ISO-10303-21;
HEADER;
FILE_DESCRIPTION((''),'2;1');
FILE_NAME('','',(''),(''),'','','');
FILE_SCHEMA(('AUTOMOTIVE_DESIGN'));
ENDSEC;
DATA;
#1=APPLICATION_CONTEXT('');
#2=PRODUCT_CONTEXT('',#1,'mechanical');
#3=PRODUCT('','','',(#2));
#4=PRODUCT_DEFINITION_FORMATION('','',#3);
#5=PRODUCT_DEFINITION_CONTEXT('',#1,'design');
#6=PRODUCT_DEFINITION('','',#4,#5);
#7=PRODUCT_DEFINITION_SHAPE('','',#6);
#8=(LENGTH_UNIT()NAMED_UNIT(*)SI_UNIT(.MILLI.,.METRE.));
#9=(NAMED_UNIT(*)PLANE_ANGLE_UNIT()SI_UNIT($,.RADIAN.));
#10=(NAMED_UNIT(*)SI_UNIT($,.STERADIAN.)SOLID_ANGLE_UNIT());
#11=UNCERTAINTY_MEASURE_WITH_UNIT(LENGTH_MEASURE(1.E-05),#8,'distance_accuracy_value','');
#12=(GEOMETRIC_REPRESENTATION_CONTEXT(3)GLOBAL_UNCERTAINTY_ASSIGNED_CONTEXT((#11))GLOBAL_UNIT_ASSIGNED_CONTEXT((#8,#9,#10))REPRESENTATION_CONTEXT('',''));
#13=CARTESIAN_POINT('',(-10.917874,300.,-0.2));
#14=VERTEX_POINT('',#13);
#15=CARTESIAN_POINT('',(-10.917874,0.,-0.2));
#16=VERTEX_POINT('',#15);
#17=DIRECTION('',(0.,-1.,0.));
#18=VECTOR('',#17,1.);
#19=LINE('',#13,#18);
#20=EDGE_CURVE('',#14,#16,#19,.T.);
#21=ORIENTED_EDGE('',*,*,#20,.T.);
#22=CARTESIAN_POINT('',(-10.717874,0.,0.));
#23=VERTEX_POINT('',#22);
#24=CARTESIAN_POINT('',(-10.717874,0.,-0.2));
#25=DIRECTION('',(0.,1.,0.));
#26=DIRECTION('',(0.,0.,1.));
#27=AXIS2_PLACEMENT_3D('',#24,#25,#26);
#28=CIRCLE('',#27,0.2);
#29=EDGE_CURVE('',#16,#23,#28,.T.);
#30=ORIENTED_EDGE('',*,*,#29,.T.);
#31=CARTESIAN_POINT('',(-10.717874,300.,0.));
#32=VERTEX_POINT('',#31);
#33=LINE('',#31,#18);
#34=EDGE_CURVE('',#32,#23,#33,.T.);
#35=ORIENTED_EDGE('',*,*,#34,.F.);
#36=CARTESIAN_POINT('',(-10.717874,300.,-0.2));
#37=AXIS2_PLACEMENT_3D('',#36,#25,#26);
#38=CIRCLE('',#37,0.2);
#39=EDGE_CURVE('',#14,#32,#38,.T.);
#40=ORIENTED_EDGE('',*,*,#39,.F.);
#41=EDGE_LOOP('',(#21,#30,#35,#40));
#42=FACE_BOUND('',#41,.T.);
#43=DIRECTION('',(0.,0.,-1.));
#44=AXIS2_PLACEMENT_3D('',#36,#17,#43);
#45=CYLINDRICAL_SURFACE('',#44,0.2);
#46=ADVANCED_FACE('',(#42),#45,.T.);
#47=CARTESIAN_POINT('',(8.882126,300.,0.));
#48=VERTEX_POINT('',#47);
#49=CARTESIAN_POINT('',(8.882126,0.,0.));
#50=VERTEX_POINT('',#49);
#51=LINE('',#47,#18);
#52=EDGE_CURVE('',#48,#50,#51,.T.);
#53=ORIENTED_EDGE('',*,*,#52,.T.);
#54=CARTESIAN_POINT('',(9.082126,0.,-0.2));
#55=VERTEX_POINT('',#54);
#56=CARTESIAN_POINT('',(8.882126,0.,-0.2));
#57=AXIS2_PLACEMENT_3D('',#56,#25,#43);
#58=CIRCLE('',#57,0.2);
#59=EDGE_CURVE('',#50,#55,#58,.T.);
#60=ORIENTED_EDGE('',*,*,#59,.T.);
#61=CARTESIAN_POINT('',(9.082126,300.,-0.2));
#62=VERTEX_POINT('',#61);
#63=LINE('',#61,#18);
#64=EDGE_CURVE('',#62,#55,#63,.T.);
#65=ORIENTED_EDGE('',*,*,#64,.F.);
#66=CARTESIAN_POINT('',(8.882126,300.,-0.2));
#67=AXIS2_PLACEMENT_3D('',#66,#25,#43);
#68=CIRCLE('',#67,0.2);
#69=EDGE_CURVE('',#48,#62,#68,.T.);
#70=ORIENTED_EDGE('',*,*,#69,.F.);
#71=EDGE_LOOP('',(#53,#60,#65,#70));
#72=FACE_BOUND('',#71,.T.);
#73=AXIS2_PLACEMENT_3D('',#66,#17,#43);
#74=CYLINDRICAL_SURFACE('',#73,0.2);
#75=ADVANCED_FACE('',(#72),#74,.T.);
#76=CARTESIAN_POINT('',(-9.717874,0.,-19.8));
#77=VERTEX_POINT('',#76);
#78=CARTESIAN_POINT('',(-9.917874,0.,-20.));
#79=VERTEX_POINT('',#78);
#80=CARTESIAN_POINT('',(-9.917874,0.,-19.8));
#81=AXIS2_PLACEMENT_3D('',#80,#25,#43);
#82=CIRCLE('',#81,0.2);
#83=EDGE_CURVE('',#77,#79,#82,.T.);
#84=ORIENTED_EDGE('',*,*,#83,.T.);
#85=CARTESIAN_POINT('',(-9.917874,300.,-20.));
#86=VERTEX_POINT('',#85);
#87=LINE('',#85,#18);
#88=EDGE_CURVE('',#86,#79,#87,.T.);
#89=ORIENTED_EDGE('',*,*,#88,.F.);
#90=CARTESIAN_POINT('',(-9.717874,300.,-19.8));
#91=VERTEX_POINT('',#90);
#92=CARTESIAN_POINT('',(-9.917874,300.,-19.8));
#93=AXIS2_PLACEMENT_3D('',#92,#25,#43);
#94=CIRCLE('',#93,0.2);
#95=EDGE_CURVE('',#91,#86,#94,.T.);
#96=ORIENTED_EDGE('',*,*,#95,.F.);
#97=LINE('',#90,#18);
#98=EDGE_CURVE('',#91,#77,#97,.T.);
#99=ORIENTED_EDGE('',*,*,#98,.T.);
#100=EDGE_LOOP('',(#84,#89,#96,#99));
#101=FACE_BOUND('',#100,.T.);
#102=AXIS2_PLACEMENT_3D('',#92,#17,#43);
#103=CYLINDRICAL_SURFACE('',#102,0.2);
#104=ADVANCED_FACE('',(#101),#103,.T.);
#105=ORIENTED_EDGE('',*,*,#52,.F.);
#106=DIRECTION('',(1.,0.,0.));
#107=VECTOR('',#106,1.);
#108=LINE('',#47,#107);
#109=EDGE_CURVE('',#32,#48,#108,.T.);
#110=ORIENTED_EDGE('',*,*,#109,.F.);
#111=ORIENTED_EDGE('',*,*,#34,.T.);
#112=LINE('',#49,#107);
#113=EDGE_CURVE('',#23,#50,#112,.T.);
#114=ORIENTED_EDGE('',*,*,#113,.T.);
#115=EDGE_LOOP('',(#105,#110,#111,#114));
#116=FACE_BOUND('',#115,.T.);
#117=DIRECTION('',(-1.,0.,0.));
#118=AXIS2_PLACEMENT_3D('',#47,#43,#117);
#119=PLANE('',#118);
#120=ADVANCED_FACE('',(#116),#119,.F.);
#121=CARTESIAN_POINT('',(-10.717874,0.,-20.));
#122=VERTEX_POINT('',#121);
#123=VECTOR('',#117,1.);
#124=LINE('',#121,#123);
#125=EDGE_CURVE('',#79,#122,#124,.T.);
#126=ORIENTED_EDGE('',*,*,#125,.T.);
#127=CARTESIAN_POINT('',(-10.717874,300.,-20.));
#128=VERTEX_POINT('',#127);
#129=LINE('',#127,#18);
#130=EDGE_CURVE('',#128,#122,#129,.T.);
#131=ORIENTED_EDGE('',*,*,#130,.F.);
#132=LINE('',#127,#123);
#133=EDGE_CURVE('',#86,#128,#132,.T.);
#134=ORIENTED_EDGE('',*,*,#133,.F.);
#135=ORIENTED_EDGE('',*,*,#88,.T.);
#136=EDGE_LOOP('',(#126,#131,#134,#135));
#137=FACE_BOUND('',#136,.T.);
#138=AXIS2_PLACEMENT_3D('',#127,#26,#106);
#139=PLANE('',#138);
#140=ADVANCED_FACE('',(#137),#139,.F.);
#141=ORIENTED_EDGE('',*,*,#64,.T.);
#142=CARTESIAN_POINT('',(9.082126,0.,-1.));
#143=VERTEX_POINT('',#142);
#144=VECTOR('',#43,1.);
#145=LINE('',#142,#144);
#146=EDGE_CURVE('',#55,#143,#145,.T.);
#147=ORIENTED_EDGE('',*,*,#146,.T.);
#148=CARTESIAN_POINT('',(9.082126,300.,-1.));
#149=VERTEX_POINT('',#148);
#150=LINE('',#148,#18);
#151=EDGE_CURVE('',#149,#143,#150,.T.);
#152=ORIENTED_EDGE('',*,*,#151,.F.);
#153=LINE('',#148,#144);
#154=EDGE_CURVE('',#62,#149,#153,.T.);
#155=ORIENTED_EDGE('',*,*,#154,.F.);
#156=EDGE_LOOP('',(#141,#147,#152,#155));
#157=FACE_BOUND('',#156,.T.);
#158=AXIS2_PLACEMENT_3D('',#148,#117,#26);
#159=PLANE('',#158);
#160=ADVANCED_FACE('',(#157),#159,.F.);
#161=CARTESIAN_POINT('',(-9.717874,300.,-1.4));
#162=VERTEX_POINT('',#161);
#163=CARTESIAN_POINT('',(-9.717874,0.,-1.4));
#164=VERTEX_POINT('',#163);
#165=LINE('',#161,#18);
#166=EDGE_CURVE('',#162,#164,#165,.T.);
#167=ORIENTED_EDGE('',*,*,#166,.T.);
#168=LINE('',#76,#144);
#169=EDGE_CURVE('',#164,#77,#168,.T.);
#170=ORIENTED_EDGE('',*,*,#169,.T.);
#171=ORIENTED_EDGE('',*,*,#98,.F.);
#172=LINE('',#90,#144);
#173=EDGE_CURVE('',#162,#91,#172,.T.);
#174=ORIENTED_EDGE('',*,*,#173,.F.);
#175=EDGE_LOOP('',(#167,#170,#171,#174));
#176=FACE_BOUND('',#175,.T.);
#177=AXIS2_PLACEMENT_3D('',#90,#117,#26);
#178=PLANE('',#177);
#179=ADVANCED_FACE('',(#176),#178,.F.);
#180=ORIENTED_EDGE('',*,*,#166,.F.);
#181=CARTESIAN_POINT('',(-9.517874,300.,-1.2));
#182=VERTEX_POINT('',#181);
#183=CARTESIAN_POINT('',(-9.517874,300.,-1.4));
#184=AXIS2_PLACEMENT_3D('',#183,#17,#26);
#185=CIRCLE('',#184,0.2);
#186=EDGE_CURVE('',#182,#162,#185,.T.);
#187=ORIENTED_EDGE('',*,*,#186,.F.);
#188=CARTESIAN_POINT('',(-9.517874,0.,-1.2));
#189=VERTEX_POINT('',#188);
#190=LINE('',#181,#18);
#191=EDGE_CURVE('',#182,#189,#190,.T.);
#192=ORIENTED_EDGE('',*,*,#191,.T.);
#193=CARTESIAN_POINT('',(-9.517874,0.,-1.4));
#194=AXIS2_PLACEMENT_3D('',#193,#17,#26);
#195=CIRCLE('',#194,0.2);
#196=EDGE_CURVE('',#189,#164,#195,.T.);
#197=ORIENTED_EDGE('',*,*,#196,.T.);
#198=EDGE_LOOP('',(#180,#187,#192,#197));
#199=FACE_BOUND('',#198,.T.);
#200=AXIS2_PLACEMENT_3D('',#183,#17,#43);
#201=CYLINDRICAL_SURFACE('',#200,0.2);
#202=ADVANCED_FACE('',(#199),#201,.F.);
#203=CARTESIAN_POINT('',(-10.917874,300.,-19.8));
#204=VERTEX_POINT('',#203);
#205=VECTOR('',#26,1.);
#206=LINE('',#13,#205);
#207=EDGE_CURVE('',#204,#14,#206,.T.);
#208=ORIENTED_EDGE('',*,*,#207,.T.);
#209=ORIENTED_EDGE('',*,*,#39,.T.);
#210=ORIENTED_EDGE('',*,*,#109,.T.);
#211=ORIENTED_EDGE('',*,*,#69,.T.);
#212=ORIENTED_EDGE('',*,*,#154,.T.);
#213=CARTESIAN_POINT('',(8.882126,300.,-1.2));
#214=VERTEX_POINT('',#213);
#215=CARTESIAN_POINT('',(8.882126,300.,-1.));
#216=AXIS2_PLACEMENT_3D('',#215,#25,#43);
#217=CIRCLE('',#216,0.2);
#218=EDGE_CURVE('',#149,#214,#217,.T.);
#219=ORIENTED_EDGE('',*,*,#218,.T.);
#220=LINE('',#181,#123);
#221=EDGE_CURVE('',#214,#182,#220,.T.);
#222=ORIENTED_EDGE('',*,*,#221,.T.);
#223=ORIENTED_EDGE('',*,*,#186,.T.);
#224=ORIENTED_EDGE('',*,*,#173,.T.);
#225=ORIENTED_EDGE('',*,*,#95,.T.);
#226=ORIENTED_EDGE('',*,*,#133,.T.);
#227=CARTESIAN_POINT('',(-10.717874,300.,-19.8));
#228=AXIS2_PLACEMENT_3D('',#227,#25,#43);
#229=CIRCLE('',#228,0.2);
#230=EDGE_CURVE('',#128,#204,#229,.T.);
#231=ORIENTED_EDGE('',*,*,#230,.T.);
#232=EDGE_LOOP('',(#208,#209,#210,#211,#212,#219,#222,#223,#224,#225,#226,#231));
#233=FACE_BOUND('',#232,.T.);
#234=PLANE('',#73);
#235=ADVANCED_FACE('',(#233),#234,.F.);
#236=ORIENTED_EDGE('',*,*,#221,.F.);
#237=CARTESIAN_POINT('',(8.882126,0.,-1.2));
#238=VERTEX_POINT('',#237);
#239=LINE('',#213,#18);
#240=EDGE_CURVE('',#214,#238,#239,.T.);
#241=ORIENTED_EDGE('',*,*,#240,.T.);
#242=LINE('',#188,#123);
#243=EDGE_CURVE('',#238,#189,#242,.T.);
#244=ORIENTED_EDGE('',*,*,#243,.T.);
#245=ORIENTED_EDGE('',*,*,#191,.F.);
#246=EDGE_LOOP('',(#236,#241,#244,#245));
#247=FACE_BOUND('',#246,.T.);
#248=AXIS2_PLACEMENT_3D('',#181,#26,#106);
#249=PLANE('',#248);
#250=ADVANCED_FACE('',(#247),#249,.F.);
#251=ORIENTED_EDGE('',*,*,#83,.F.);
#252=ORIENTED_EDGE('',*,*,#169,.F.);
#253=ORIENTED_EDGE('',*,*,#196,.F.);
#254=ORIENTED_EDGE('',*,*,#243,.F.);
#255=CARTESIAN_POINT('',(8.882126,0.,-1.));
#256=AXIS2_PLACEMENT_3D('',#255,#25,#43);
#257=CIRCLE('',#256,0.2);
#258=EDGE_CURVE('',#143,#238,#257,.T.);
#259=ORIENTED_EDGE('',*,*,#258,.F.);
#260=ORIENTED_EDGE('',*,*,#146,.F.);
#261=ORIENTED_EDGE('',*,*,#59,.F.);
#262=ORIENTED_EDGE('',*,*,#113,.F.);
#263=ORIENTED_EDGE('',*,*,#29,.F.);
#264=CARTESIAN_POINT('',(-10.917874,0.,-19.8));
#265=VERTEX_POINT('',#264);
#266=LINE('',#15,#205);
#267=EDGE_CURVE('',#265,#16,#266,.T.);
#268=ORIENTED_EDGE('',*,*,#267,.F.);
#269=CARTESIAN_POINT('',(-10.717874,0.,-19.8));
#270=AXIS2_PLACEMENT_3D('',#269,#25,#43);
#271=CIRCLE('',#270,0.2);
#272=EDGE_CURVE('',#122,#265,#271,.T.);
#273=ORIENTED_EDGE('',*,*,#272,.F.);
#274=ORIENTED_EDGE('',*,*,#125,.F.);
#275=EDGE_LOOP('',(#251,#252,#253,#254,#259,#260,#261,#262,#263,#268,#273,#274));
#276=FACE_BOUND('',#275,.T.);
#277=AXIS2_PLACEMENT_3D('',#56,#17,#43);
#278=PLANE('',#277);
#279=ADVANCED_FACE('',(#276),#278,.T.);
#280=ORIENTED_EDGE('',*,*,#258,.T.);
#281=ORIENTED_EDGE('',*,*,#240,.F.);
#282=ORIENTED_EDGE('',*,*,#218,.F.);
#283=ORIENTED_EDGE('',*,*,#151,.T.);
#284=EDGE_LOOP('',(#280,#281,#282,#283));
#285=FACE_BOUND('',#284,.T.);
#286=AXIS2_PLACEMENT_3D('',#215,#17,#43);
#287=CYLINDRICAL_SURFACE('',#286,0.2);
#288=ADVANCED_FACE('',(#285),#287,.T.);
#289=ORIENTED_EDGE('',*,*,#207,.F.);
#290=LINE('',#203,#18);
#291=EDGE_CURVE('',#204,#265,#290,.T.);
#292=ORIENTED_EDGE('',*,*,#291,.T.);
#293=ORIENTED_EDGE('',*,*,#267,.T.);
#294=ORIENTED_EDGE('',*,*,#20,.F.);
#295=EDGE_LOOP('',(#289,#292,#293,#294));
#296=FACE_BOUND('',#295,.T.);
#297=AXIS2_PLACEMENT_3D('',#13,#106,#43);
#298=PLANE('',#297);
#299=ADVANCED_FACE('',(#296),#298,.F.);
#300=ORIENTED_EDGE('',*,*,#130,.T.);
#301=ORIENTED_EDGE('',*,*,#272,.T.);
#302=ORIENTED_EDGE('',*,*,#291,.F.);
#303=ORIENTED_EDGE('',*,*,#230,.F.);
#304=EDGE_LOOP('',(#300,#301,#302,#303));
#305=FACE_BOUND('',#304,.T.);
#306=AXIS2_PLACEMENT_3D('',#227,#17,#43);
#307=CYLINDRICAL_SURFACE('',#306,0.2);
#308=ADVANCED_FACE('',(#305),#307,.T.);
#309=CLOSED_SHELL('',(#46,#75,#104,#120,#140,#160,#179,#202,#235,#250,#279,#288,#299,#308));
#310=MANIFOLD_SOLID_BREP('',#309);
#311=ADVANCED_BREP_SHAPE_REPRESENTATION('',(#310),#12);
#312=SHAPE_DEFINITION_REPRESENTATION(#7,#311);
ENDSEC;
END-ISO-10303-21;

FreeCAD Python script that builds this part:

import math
import FreeCAD as App
import Part
import Sketcher

V = App.Vector
Q = App.Units.Quantity

doc = App.newDocument("Part")
body = doc.addObject("PartDesign::Body", "Body")

# Sketch on XZ plane
sketch1 = body.newObject("Sketcher::SketchObject", "Sketch")
sketch1.AttachmentSupport = (doc.getObject("XZ_Plane"), [""])
sketch1.MapMode = "FlatFace"
sketch1.addGeometry([
    Part.LineSegment(V(-10.92, -19.8, 0), V(-10.92, -0.2, 0)),  # 0
    Part.ArcOfCircle(Part.Circle(V(-10.72, -0.2, 0), V(0, 0, 1), 0.2), math.radians(90), math.radians(180)),  # 1
    Part.LineSegment(V(-10.72, 0, 0), V(8.88, 0, 0)),  # 2
    Part.ArcOfCircle(Part.Circle(V(8.88, -0.2, 0), V(0, 0, 1), 0.2), math.radians(0), math.radians(90)),  # 3
    Part.LineSegment(V(9.08, -0.2, 0), V(9.08, -1, 0)),  # 4
    Part.ArcOfCircle(Part.Circle(V(8.88, -1, 0), V(0, 0, 1), 0.2), math.radians(-90), math.radians(0)),  # 5
    Part.LineSegment(V(8.88, -1.2, 0), V(-9.52, -1.2, 0)),  # 6
    Part.ArcOfCircle(Part.Circle(V(-9.52, -1.4, 0), V(0, 0, 1), 0.2), math.radians(90), math.radians(180)),  # 7
    Part.LineSegment(V(-9.72, -1.4, 0), V(-9.72, -19.8, 0)),  # 8
    Part.ArcOfCircle(Part.Circle(V(-9.92, -19.8, 0), V(0, 0, 1), 0.2), math.radians(-90), math.radians(0)),  # 9
    Part.LineSegment(V(-9.92, -20, 0), V(-10.72, -20, 0)),  # 10
    Part.ArcOfCircle(Part.Circle(V(-10.72, -19.8, 0), V(0, 0, 1), 0.2), math.radians(-180), math.radians(-90)),  # 11
], False)
sketch1.addConstraint([
    Sketcher.Constraint("Tangent", 0, 2, 1, 2),
    Sketcher.Constraint("Tangent", 1, 1, 2, 1),
    Sketcher.Constraint("Tangent", 2, 2, 3, 2),
    Sketcher.Constraint("Tangent", 3, 1, 4, 1),
    Sketcher.Constraint("Tangent", 4, 2, 5, 2),
    Sketcher.Constraint("Tangent", 5, 1, 6, 1),
    Sketcher.Constraint("Tangent", 6, 2, 7, 1),
    Sketcher.Constraint("Tangent", 7, 2, 8, 1),
    Sketcher.Constraint("Tangent", 8, 2, 9, 2),
    Sketcher.Constraint("Tangent", 9, 1, 10, 1),
    Sketcher.Constraint("Tangent", 10, 2, 11, 2),
    Sketcher.Constraint("Tangent", 11, 1, 0, 1),
    Sketcher.Constraint("Vertical", 0),
    Sketcher.Constraint("Horizontal", 2),
    Sketcher.Constraint("Vertical", 4),
    Sketcher.Constraint("Horizontal", 6),
    Sketcher.Constraint("Vertical", 8),
    Sketcher.Constraint("Horizontal", 10),
    Sketcher.Constraint("Equal", 1, 3),
    Sketcher.Constraint("Equal", 3, 5),
    Sketcher.Constraint("Equal", 5, 7),
    Sketcher.Constraint("Equal", 7, 9),
    Sketcher.Constraint("Equal", 9, 11),
    Sketcher.Constraint("PointOnObject", 1, 1, -1),
    Sketcher.Constraint("Equal", 2, 0),
    Sketcher.Constraint("Equal", 10, 4),
    Sketcher.Constraint("Radius", 1, Q("0.2 mm")),
    Sketcher.Constraint("DistanceX", 2, 1, 2, 2, Q("19.6 mm")),
    Sketcher.Constraint("DistanceX", 6, 2, 6, 1, Q("18.4 mm")),
    Sketcher.Constraint("DistanceX", 1, 3, -1, 1, Q("10.717874 mm")),
])
pad1 = body.newObject("PartDesign::Pad", "Pad")
pad1.Profile = sketch1
pad1.Length = 300
pad1.Reversed = True

doc.recompute()
